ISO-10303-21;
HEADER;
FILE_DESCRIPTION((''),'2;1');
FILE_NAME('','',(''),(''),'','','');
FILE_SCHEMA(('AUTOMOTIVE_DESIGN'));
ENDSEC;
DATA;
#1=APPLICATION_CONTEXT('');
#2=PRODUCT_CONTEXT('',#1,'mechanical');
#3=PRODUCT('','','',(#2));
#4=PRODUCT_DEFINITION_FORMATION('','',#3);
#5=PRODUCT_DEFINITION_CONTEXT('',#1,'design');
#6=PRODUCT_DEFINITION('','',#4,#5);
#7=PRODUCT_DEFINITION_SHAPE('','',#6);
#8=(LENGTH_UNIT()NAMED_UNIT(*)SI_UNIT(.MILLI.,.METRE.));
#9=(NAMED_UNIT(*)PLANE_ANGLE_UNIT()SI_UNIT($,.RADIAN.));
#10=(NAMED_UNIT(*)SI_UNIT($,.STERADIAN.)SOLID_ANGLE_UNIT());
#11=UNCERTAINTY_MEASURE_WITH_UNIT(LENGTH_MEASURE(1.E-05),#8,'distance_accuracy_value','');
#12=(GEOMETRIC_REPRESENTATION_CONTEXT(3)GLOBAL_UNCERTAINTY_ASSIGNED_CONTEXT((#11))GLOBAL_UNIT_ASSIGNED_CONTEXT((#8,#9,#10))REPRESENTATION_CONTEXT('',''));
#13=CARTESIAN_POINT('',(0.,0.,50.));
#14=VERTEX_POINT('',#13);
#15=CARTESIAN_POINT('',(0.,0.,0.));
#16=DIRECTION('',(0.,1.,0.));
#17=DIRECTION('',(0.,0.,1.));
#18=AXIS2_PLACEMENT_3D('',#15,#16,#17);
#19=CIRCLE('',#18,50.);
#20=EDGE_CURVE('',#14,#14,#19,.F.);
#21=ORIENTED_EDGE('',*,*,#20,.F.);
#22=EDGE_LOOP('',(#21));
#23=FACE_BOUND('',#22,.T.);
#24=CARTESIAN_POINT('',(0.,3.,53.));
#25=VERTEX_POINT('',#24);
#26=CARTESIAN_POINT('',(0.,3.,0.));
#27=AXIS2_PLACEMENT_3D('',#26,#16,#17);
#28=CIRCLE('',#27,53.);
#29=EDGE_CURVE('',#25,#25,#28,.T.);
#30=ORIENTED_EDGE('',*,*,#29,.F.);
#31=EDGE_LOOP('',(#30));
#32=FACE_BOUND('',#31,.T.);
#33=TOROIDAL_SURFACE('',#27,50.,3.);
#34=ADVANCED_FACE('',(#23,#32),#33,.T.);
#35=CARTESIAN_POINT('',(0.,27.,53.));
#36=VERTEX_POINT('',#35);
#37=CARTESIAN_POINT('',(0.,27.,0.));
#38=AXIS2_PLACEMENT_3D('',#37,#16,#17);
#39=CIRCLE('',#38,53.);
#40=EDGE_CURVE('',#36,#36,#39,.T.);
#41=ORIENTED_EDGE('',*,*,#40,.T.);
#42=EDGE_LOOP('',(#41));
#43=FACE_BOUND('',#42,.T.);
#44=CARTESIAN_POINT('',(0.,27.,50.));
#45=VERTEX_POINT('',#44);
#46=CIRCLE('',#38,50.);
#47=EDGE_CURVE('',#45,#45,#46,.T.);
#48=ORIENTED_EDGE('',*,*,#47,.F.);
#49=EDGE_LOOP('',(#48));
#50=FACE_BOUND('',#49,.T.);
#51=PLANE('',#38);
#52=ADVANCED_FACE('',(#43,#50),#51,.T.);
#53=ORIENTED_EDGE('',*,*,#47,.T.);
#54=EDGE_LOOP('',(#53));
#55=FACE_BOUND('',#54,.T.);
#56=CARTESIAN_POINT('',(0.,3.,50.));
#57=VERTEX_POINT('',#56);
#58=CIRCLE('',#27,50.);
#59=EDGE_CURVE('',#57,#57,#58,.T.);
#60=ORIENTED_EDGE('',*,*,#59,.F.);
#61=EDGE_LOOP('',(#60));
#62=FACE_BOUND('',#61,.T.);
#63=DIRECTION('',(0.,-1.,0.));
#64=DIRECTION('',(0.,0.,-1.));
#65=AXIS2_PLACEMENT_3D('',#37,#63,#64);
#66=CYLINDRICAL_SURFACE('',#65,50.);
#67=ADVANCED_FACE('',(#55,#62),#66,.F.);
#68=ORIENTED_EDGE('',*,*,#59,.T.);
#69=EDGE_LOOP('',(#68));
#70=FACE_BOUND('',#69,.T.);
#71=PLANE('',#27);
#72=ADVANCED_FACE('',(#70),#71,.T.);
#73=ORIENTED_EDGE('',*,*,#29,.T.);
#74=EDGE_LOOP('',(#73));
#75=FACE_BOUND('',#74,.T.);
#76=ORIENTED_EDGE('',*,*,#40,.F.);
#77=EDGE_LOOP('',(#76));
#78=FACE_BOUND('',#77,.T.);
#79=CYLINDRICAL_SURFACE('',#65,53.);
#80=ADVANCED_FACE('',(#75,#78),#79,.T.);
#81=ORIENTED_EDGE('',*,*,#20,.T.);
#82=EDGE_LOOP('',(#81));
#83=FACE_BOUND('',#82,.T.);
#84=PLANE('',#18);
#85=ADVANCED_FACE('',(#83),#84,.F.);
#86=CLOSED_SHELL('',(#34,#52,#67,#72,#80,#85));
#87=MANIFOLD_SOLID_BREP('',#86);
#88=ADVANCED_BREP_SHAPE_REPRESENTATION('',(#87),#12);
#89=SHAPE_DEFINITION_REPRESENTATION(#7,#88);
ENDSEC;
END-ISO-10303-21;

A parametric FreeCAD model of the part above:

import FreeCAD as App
import Part
import Sketcher

V = App.Vector


def edges_at(feature, points):
    """Names of the edges that pass closest to the given points."""
    edges = feature.Shape.Edges
    near = lambda p: min(range(len(edges)), key=lambda i: edges[i].distToShape(Part.Vertex(*p))[0])
    return sorted({f"Edge{near(p) + 1}" for p in points})

doc = App.newDocument("Part")
body = doc.addObject("PartDesign::Body", "Body")

# Sketch on XZ plane
sketch1 = body.newObject("Sketcher::SketchObject", "Sketch")
sketch1.AttachmentSupport = (doc.getObject("XZ_Plane"), [""])
sketch1.MapMode = "FlatFace"
sketch1.addGeometry(Part.Circle(V(0, 0, 0), V(0, 0, 1), 53), False)
sketch1.addGeometry(Part.Circle(V(0, 0, 0), V(0, 0, 1), 50), False)
sketch1.addConstraint(Sketcher.Constraint("Coincident", 0, 3, -1, 1))
sketch1.addConstraint(Sketcher.Constraint("Coincident", 1, 3, -1, 1))
sketch1.addConstraint(Sketcher.Constraint("Diameter", 0, 106.0))
sketch1.addConstraint(Sketcher.Constraint("Diameter", 1, 100.0))
pad1 = body.newObject("PartDesign::Pad", "Pad")
pad1.Profile = sketch1
pad1.Length = 27
pad1.Reversed = True

# Sketch on XZ plane
sketch2 = body.newObject("Sketcher::SketchObject", "Sketch001")
sketch2.AttachmentSupport = (doc.getObject("XZ_Plane"), [""])
sketch2.MapMode = "FlatFace"
sketch2.addGeometry(Part.Circle(V(0, 0, 0), V(0, 0, 1), 53), False)
sketch2.addConstraint(Sketcher.Constraint("Coincident", 0, 3, -1, 1))
sketch2.addConstraint(Sketcher.Constraint("Diameter", 0, 106.0))
pad2 = body.newObject("PartDesign::Pad", "Pad001")
pad2.Profile = sketch2
pad2.Length = 3
pad2.Reversed = True
doc.recompute()

fillet = body.newObject("PartDesign::Fillet", "Fillet")
fillet.Base = (pad2, edges_at(pad2, [(0, 0, -53)]))
fillet.Radius = 3

doc.recompute()
